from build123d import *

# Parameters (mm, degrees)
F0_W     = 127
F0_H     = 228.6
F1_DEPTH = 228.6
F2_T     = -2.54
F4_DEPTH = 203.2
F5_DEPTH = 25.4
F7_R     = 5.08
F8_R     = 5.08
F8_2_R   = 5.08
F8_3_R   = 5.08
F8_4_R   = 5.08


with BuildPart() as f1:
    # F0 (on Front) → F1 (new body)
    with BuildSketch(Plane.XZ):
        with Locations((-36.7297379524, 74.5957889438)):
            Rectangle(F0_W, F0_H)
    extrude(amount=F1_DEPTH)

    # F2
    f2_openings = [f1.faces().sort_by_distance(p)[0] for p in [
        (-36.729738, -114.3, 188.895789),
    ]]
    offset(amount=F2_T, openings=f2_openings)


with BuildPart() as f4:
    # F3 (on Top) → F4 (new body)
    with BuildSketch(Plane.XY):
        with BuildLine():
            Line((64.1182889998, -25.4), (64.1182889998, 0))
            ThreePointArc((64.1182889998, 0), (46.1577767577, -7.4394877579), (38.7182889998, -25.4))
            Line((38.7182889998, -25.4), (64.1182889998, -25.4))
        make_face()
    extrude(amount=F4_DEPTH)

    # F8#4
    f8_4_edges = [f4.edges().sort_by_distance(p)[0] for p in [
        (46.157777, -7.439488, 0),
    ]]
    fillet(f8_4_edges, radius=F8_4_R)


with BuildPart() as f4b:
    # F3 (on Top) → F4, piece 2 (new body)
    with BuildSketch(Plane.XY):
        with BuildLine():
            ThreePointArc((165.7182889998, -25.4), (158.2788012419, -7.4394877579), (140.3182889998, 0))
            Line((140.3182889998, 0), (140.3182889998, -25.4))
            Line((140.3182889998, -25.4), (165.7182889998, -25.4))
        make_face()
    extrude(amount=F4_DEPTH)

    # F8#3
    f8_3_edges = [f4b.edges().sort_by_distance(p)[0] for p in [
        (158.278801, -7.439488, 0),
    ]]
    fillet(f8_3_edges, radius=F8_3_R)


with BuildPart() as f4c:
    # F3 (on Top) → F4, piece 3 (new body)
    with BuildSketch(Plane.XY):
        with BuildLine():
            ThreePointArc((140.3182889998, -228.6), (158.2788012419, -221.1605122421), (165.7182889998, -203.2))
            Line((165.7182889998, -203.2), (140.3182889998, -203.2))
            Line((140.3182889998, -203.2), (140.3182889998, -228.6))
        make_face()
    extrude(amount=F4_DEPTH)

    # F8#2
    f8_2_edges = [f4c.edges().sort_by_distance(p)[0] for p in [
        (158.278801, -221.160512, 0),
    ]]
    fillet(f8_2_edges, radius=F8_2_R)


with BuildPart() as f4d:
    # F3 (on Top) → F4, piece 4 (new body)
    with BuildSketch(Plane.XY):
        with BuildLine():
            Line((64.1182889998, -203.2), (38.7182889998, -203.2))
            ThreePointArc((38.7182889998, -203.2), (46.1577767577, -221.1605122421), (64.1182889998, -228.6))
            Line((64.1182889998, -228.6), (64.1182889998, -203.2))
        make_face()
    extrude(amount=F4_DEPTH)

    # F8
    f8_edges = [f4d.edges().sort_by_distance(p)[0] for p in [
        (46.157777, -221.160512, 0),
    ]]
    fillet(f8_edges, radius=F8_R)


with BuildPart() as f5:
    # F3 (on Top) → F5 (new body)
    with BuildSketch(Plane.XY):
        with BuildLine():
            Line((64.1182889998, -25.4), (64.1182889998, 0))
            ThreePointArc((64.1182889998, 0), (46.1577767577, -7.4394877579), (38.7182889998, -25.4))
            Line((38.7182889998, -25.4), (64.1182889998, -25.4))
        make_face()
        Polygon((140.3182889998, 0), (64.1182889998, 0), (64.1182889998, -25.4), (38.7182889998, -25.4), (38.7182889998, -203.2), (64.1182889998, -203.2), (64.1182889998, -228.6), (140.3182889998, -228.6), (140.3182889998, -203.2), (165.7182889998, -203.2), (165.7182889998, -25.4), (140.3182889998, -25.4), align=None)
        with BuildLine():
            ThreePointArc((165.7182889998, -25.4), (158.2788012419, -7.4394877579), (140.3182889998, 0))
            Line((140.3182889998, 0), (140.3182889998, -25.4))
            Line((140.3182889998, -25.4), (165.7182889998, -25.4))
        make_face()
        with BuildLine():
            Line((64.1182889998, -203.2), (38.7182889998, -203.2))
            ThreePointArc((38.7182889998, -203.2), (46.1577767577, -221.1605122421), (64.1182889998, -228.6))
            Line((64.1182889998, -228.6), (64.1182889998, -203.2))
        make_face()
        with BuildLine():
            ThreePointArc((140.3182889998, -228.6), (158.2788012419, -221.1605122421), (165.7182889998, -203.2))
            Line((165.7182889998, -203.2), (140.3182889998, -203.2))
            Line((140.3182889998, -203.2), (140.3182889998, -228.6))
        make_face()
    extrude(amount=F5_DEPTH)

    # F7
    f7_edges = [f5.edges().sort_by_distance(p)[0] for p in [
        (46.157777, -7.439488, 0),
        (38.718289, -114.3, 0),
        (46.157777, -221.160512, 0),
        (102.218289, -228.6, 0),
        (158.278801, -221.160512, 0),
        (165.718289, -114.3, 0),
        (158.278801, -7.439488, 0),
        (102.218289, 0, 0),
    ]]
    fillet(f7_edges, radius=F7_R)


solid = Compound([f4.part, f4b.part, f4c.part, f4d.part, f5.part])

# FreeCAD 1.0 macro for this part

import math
import FreeCAD as App
import Part
import Sketcher

V = App.Vector
Q = App.Units.Quantity


def edges_at(feature, points):
    """Names of the edges that pass closest to the given points."""
    edges = feature.Shape.Edges
    near = lambda p: min(range(len(edges)), key=lambda i: edges[i].distToShape(Part.Vertex(*p))[0])
    return sorted({f"Edge{near(p) + 1}" for p in points})


def faces_at(feature, points):
    """Names of the faces that lie closest to the given points."""
    faces = feature.Shape.Faces
    near = lambda p: min(range(len(faces)), key=lambda i: faces[i].distToShape(Part.Vertex(*p))[0])
    return sorted({f"Face{near(p) + 1}" for p in points})

doc = App.newDocument("Part")
body = doc.addObject("PartDesign::Body", "Body")

sketch1 = body.newObject("Sketcher::SketchObject", "Sketch")
sketch1.AttachmentSupport = (doc.getObject("XZ_Plane"), [""])
sketch1.MapMode = "FlatFace"
sketch1.addGeometry([
    Part.LineSegment(V(-100.229738, 188.895789, 0), V(-100.229738, -39.704211, 0)),
    Part.LineSegment(V(-100.229738, -39.704211, 0), V(26.770262, -39.704211, 0)),
    Part.LineSegment(V(26.770262, -39.704211, 0), V(26.770262, 188.895789, 0)),
    Part.LineSegment(V(26.770262, 188.895789, 0), V(-100.229738, 188.895789, 0)),
], False)
sketch1.addConstraint([
    Sketcher.Constraint("Coincident", 0, 2, 1, 1),
    Sketcher.Constraint("Coincident", 1, 2, 2, 1),
    Sketcher.Constraint("Coincident", 2, 2, 3, 1),
    Sketcher.Constraint("Coincident", 3, 2, 0, 1),
    Sketcher.Constraint("Vertical", 0),
    Sketcher.Constraint("Horizontal", 1),
    Sketcher.Constraint("Vertical", 2),
    Sketcher.Constraint("Horizontal", 3),
    Sketcher.Constraint("DistanceX", 1, 1, 1, 2, Q("5 in")),
    Sketcher.Constraint("DistanceY", 0, 2, 0, 1, Q("9 in")),
    Sketcher.Constraint("DistanceY", 0, 2, -1, 1, 39.704211),
    Sketcher.Constraint("DistanceX", 0, 2, -1, 1, 100.229738),
])
pad1 = body.newObject("PartDesign::Pad", "Pad")
pad1.Profile = sketch1
pad1.Length = Q("9 in")
doc.recompute()

thickness = body.newObject("PartDesign::Thickness", "Thickness")
thickness.Base = (pad1, faces_at(pad1, [(-36.73, -114.3, 188.896)]))
thickness.Value = Q("0.1 in")
thickness.Reversed = True
thickness.Join = "Arc"
body2 = doc.addObject("PartDesign::Body", "Body001")

sketch2 = body2.newObject("Sketcher::SketchObject", "Sketch001")
sketch2.AttachmentSupport = (doc.getObject("XY_Plane001"), [""])
sketch2.MapMode = "FlatFace"
sketch2.addGeometry([
    Part.LineSegment(V(64.118289, -25.4, 0), V(64.118289, 0, 0)),
    Part.ArcOfCircle(Part.Circle(V(64.118289, -25.4, 0), V(0, 0, 1), 25.4), math.radians(90), math.radians(180)),
    Part.LineSegment(V(38.718289, -25.4, 0), V(64.118289, -25.4, 0)),
], False)
sketch2.addConstraint([
    Sketcher.Constraint("Coincident", 0, 2, 1, 1),
    Sketcher.Constraint("Coincident", 1, 2, 2, 1),
    Sketcher.Constraint("Coincident", 2, 2, 0, 1),
    Sketcher.Constraint("Vertical", 0),
    Sketcher.Constraint("Horizontal", 2),
    Sketcher.Constraint("Coincident", 2, 2, 1, 3),
    Sketcher.Constraint("PointOnObject", 0, 2, -1),
    Sketcher.Constraint("Radius", 1, Q("1 in")),
    Sketcher.Constraint("DistanceX", -1, 1, 1, 3, 64.118289),
])
pad2 = body2.newObject("PartDesign::Pad", "Pad001")
pad2.Profile = sketch2
pad2.Length = Q("8 in")
doc.recompute()

fillet = body2.newObject("PartDesign::Fillet", "Fillet")
fillet.Base = (pad2, edges_at(pad2, [(46.158, -7.439, 0)]))
fillet.Radius = Q("0.2 in")
body3 = doc.addObject("PartDesign::Body", "Body002")

sketch3 = body3.newObject("Sketcher::SketchObject", "Sketch002")
sketch3.AttachmentSupport = (doc.getObject("XY_Plane002"), [""])
sketch3.MapMode = "FlatFace"
sketch3.addGeometry([
    Part.ArcOfCircle(Part.Circle(V(140.318289, -25.4, 0), V(0, 0, 1), 25.4), math.radians(0), math.radians(90)),
    Part.LineSegment(V(140.318289, 0, 0), V(140.318289, -25.4, 0)),
    Part.LineSegment(V(140.318289, -25.4, 0), V(165.718289, -25.4, 0)),
], False)
sketch3.addConstraint([
    Sketcher.Constraint("Coincident", 0, 2, 1, 1),
    Sketcher.Constraint("Coincident", 1, 2, 2, 1),
    Sketcher.Constraint("Coincident", 2, 2, 0, 1),
    Sketcher.Constraint("Vertical", 1),
    Sketcher.Constraint("Horizontal", 2),
    Sketcher.Constraint("Coincident", 1, 2, 0, 3),
    Sketcher.Constraint("PointOnObject", 0, 2, -1),
    Sketcher.Constraint("Radius", 0, Q("1 in")),
    Sketcher.Constraint("DistanceX", -1, 1, 0, 3, 140.318289),
])
pad3 = body3.newObject("PartDesign::Pad", "Pad002")
pad3.Profile = sketch3
pad3.Length = Q("8 in")
doc.recompute()

fillet2 = body3.newObject("PartDesign::Fillet", "Fillet001")
fillet2.Base = (pad3, edges_at(pad3, [(158.279, -7.439, 0)]))
fillet2.Radius = Q("0.2 in")
body4 = doc.addObject("PartDesign::Body", "Body003")

sketch4 = body4.newObject("Sketcher::SketchObject", "Sketch003")
sketch4.AttachmentSupport = (doc.getObject("XY_Plane003"), [""])
sketch4.MapMode = "FlatFace"
sketch4.addGeometry([
    Part.ArcOfCircle(Part.Circle(V(140.318289, -203.2, 0), V(0, 0, 1), 25.4), math.radians(-90), math.radians(0)),
    Part.LineSegment(V(165.718289, -203.2, 0), V(140.318289, -203.2, 0)),
    Part.LineSegment(V(140.318289, -203.2, 0), V(140.318289, -228.6, 0)),
], False)
sketch4.addConstraint([
    Sketcher.Constraint("Coincident", 0, 2, 1, 1),
    Sketcher.Constraint("Coincident", 1, 2, 2, 1),
    Sketcher.Constraint("Coincident", 2, 2, 0, 1),
    Sketcher.Constraint("Horizontal", 1),
    Sketcher.Constraint("Vertical", 2),
    Sketcher.Constraint("Coincident", 1, 2, 0, 3),
    Sketcher.Constraint("Radius", 0, Q("1 in")),
    Sketcher.Constraint("DistanceY", 0, 3, -1, 1, Q("8 in")),
    Sketcher.Constraint("DistanceX", -1, 1, 0, 3, 140.318289),
])
pad4 = body4.newObject("PartDesign::Pad", "Pad003")
pad4.Profile = sketch4
pad4.Length = Q("8 in")
doc.recompute()

fillet3 = body4.newObject("PartDesign::Fillet", "Fillet002")
fillet3.Base = (pad4, edges_at(pad4, [(158.279, -221.161, 0)]))
fillet3.Radius = Q("0.2 in")
body5 = doc.addObject("PartDesign::Body", "Body004")

sketch5 = body5.newObject("Sketcher::SketchObject", "Sketch004")
sketch5.AttachmentSupport = (doc.getObject("XY_Plane004"), [""])
sketch5.MapMode = "FlatFace"
sketch5.addGeometry([
    Part.LineSegment(V(64.118289, -203.2, 0), V(38.718289, -203.2, 0)),
    Part.ArcOfCircle(Part.Circle(V(64.118289, -203.2, 0), V(0, 0, 1), 25.4), math.radians(180), math.radians(270)),
    Part.LineSegment(V(64.118289, -228.6, 0), V(64.118289, -203.2, 0)),
], False)
sketch5.addConstraint([
    Sketcher.Constraint("Coincident", 0, 2, 1, 1),
    Sketcher.Constraint("Coincident", 1, 2, 2, 1),
    Sketcher.Constraint("Coincident", 2, 2, 0, 1),
    Sketcher.Constraint("Horizontal", 0),
    Sketcher.Constraint("Vertical", 2),
    Sketcher.Constraint("Coincident", 2, 2, 1, 3),
    Sketcher.Constraint("Radius", 1, Q("1 in")),
    Sketcher.Constraint("DistanceY", 1, 3, -1, 1, Q("8 in")),
    Sketcher.Constraint("DistanceX", -1, 1, 1, 3, 64.118289),
])
pad5 = body5.newObject("PartDesign::Pad", "Pad004")
pad5.Profile = sketch5
pad5.Length = Q("8 in")
doc.recompute()

fillet4 = body5.newObject("PartDesign::Fillet", "Fillet003")
fillet4.Base = (pad5, edges_at(pad5, [(46.158, -221.161, 0)]))
fillet4.Radius = Q("0.2 in")
body6 = doc.addObject("PartDesign::Body", "Body005")

sketch6 = body6.newObject("Sketcher::SketchObject", "Sketch005")
sketch6.AttachmentSupport = (doc.getObject("XY_Plane005"), [""])
sketch6.MapMode = "FlatFace"
sketch6.addGeometry([
    Part.ArcOfCircle(Part.Circle(V(64.118289, -25.4, 0), V(0, 0, 1), 25.4), math.radians(90), math.radians(180)),
    Part.LineSegment(V(38.718289, -25.4, 0), V(38.718289, -203.2, 0)),
    Part.ArcOfCircle(Part.Circle(V(64.118289, -203.2, 0), V(0, 0, 1), 25.4), math.radians(180), math.radians(270)),
    Part.LineSegment(V(64.118289, -228.6, 0), V(140.318289, -228.6, 0)),
    Part.ArcOfCircle(Part.Circle(V(140.318289, -203.2, 0), V(0, 0, 1), 25.4), math.radians(-90), math.radians(0)),
    Part.LineSegment(V(165.718289, -203.2, 0), V(165.718289, -25.4, 0)),
    Part.ArcOfCircle(Part.Circle(V(140.318289, -25.4, 0), V(0, 0, 1), 25.4), math.radians(0), math.radians(90)),
    Part.LineSegment(V(140.318289, 0, 0), V(64.118289, 0, 0)),
], False)
sketch6.addConstraint([
    Sketcher.Constraint("Tangent", 0, 2, 1, 1),
    Sketcher.Constraint("Tangent", 1, 2, 2, 1),
    Sketcher.Constraint("Tangent", 2, 2, 3, 1),
    Sketcher.Constraint("Tangent", 3, 2, 4, 1),
    Sketcher.Constraint("Tangent", 4, 2, 5, 1),
    Sketcher.Constraint("Tangent", 5, 2, 6, 1),
    Sketcher.Constraint("Tangent", 6, 2, 7, 1),
    Sketcher.Constraint("Tangent", 7, 2, 0, 1),
    Sketcher.Constraint("Vertical", 1),
    Sketcher.Constraint("Horizontal", 3),
    Sketcher.Constraint("Vertical", 5),
    Sketcher.Constraint("Horizontal", 7),
    Sketcher.Constraint("Equal", 0, 2),
    Sketcher.Constraint("Equal", 2, 4),
    Sketcher.Constraint("Equal", 4, 6),
    Sketcher.Constraint("PointOnObject", 6, 2, -1),
    Sketcher.Constraint("Radius", 0, Q("1 in")),
    Sketcher.Constraint("DistanceX", 3, 1, 3, 2, Q("3 in")),
    Sketcher.Constraint("DistanceY", 1, 2, 1, 1, Q("7 in")),
    Sketcher.Constraint("DistanceX", -1, 1, 0, 3, 64.118289),
])
pad6 = body6.newObject("PartDesign::Pad", "Pad005")
pad6.Profile = sketch6
pad6.Length = Q("1 in")
doc.recompute()

fillet5 = body6.newObject("PartDesign::Fillet", "Fillet004")
fillet5.Base = (pad6, edges_at(pad6, [
    (46.158, -7.439, 0),
    (38.718, -114.3, 0),
    (46.158, -221.161, 0),
    (102.218, -228.6, 0),
    (158.279, -221.161, 0),
    (165.718, -114.3, 0),
    (158.279, -7.439, 0),
    (102.218, 0, 0),
]))
fillet5.Radius = Q("0.2 in")
body.Visibility = False

doc.recompute()
